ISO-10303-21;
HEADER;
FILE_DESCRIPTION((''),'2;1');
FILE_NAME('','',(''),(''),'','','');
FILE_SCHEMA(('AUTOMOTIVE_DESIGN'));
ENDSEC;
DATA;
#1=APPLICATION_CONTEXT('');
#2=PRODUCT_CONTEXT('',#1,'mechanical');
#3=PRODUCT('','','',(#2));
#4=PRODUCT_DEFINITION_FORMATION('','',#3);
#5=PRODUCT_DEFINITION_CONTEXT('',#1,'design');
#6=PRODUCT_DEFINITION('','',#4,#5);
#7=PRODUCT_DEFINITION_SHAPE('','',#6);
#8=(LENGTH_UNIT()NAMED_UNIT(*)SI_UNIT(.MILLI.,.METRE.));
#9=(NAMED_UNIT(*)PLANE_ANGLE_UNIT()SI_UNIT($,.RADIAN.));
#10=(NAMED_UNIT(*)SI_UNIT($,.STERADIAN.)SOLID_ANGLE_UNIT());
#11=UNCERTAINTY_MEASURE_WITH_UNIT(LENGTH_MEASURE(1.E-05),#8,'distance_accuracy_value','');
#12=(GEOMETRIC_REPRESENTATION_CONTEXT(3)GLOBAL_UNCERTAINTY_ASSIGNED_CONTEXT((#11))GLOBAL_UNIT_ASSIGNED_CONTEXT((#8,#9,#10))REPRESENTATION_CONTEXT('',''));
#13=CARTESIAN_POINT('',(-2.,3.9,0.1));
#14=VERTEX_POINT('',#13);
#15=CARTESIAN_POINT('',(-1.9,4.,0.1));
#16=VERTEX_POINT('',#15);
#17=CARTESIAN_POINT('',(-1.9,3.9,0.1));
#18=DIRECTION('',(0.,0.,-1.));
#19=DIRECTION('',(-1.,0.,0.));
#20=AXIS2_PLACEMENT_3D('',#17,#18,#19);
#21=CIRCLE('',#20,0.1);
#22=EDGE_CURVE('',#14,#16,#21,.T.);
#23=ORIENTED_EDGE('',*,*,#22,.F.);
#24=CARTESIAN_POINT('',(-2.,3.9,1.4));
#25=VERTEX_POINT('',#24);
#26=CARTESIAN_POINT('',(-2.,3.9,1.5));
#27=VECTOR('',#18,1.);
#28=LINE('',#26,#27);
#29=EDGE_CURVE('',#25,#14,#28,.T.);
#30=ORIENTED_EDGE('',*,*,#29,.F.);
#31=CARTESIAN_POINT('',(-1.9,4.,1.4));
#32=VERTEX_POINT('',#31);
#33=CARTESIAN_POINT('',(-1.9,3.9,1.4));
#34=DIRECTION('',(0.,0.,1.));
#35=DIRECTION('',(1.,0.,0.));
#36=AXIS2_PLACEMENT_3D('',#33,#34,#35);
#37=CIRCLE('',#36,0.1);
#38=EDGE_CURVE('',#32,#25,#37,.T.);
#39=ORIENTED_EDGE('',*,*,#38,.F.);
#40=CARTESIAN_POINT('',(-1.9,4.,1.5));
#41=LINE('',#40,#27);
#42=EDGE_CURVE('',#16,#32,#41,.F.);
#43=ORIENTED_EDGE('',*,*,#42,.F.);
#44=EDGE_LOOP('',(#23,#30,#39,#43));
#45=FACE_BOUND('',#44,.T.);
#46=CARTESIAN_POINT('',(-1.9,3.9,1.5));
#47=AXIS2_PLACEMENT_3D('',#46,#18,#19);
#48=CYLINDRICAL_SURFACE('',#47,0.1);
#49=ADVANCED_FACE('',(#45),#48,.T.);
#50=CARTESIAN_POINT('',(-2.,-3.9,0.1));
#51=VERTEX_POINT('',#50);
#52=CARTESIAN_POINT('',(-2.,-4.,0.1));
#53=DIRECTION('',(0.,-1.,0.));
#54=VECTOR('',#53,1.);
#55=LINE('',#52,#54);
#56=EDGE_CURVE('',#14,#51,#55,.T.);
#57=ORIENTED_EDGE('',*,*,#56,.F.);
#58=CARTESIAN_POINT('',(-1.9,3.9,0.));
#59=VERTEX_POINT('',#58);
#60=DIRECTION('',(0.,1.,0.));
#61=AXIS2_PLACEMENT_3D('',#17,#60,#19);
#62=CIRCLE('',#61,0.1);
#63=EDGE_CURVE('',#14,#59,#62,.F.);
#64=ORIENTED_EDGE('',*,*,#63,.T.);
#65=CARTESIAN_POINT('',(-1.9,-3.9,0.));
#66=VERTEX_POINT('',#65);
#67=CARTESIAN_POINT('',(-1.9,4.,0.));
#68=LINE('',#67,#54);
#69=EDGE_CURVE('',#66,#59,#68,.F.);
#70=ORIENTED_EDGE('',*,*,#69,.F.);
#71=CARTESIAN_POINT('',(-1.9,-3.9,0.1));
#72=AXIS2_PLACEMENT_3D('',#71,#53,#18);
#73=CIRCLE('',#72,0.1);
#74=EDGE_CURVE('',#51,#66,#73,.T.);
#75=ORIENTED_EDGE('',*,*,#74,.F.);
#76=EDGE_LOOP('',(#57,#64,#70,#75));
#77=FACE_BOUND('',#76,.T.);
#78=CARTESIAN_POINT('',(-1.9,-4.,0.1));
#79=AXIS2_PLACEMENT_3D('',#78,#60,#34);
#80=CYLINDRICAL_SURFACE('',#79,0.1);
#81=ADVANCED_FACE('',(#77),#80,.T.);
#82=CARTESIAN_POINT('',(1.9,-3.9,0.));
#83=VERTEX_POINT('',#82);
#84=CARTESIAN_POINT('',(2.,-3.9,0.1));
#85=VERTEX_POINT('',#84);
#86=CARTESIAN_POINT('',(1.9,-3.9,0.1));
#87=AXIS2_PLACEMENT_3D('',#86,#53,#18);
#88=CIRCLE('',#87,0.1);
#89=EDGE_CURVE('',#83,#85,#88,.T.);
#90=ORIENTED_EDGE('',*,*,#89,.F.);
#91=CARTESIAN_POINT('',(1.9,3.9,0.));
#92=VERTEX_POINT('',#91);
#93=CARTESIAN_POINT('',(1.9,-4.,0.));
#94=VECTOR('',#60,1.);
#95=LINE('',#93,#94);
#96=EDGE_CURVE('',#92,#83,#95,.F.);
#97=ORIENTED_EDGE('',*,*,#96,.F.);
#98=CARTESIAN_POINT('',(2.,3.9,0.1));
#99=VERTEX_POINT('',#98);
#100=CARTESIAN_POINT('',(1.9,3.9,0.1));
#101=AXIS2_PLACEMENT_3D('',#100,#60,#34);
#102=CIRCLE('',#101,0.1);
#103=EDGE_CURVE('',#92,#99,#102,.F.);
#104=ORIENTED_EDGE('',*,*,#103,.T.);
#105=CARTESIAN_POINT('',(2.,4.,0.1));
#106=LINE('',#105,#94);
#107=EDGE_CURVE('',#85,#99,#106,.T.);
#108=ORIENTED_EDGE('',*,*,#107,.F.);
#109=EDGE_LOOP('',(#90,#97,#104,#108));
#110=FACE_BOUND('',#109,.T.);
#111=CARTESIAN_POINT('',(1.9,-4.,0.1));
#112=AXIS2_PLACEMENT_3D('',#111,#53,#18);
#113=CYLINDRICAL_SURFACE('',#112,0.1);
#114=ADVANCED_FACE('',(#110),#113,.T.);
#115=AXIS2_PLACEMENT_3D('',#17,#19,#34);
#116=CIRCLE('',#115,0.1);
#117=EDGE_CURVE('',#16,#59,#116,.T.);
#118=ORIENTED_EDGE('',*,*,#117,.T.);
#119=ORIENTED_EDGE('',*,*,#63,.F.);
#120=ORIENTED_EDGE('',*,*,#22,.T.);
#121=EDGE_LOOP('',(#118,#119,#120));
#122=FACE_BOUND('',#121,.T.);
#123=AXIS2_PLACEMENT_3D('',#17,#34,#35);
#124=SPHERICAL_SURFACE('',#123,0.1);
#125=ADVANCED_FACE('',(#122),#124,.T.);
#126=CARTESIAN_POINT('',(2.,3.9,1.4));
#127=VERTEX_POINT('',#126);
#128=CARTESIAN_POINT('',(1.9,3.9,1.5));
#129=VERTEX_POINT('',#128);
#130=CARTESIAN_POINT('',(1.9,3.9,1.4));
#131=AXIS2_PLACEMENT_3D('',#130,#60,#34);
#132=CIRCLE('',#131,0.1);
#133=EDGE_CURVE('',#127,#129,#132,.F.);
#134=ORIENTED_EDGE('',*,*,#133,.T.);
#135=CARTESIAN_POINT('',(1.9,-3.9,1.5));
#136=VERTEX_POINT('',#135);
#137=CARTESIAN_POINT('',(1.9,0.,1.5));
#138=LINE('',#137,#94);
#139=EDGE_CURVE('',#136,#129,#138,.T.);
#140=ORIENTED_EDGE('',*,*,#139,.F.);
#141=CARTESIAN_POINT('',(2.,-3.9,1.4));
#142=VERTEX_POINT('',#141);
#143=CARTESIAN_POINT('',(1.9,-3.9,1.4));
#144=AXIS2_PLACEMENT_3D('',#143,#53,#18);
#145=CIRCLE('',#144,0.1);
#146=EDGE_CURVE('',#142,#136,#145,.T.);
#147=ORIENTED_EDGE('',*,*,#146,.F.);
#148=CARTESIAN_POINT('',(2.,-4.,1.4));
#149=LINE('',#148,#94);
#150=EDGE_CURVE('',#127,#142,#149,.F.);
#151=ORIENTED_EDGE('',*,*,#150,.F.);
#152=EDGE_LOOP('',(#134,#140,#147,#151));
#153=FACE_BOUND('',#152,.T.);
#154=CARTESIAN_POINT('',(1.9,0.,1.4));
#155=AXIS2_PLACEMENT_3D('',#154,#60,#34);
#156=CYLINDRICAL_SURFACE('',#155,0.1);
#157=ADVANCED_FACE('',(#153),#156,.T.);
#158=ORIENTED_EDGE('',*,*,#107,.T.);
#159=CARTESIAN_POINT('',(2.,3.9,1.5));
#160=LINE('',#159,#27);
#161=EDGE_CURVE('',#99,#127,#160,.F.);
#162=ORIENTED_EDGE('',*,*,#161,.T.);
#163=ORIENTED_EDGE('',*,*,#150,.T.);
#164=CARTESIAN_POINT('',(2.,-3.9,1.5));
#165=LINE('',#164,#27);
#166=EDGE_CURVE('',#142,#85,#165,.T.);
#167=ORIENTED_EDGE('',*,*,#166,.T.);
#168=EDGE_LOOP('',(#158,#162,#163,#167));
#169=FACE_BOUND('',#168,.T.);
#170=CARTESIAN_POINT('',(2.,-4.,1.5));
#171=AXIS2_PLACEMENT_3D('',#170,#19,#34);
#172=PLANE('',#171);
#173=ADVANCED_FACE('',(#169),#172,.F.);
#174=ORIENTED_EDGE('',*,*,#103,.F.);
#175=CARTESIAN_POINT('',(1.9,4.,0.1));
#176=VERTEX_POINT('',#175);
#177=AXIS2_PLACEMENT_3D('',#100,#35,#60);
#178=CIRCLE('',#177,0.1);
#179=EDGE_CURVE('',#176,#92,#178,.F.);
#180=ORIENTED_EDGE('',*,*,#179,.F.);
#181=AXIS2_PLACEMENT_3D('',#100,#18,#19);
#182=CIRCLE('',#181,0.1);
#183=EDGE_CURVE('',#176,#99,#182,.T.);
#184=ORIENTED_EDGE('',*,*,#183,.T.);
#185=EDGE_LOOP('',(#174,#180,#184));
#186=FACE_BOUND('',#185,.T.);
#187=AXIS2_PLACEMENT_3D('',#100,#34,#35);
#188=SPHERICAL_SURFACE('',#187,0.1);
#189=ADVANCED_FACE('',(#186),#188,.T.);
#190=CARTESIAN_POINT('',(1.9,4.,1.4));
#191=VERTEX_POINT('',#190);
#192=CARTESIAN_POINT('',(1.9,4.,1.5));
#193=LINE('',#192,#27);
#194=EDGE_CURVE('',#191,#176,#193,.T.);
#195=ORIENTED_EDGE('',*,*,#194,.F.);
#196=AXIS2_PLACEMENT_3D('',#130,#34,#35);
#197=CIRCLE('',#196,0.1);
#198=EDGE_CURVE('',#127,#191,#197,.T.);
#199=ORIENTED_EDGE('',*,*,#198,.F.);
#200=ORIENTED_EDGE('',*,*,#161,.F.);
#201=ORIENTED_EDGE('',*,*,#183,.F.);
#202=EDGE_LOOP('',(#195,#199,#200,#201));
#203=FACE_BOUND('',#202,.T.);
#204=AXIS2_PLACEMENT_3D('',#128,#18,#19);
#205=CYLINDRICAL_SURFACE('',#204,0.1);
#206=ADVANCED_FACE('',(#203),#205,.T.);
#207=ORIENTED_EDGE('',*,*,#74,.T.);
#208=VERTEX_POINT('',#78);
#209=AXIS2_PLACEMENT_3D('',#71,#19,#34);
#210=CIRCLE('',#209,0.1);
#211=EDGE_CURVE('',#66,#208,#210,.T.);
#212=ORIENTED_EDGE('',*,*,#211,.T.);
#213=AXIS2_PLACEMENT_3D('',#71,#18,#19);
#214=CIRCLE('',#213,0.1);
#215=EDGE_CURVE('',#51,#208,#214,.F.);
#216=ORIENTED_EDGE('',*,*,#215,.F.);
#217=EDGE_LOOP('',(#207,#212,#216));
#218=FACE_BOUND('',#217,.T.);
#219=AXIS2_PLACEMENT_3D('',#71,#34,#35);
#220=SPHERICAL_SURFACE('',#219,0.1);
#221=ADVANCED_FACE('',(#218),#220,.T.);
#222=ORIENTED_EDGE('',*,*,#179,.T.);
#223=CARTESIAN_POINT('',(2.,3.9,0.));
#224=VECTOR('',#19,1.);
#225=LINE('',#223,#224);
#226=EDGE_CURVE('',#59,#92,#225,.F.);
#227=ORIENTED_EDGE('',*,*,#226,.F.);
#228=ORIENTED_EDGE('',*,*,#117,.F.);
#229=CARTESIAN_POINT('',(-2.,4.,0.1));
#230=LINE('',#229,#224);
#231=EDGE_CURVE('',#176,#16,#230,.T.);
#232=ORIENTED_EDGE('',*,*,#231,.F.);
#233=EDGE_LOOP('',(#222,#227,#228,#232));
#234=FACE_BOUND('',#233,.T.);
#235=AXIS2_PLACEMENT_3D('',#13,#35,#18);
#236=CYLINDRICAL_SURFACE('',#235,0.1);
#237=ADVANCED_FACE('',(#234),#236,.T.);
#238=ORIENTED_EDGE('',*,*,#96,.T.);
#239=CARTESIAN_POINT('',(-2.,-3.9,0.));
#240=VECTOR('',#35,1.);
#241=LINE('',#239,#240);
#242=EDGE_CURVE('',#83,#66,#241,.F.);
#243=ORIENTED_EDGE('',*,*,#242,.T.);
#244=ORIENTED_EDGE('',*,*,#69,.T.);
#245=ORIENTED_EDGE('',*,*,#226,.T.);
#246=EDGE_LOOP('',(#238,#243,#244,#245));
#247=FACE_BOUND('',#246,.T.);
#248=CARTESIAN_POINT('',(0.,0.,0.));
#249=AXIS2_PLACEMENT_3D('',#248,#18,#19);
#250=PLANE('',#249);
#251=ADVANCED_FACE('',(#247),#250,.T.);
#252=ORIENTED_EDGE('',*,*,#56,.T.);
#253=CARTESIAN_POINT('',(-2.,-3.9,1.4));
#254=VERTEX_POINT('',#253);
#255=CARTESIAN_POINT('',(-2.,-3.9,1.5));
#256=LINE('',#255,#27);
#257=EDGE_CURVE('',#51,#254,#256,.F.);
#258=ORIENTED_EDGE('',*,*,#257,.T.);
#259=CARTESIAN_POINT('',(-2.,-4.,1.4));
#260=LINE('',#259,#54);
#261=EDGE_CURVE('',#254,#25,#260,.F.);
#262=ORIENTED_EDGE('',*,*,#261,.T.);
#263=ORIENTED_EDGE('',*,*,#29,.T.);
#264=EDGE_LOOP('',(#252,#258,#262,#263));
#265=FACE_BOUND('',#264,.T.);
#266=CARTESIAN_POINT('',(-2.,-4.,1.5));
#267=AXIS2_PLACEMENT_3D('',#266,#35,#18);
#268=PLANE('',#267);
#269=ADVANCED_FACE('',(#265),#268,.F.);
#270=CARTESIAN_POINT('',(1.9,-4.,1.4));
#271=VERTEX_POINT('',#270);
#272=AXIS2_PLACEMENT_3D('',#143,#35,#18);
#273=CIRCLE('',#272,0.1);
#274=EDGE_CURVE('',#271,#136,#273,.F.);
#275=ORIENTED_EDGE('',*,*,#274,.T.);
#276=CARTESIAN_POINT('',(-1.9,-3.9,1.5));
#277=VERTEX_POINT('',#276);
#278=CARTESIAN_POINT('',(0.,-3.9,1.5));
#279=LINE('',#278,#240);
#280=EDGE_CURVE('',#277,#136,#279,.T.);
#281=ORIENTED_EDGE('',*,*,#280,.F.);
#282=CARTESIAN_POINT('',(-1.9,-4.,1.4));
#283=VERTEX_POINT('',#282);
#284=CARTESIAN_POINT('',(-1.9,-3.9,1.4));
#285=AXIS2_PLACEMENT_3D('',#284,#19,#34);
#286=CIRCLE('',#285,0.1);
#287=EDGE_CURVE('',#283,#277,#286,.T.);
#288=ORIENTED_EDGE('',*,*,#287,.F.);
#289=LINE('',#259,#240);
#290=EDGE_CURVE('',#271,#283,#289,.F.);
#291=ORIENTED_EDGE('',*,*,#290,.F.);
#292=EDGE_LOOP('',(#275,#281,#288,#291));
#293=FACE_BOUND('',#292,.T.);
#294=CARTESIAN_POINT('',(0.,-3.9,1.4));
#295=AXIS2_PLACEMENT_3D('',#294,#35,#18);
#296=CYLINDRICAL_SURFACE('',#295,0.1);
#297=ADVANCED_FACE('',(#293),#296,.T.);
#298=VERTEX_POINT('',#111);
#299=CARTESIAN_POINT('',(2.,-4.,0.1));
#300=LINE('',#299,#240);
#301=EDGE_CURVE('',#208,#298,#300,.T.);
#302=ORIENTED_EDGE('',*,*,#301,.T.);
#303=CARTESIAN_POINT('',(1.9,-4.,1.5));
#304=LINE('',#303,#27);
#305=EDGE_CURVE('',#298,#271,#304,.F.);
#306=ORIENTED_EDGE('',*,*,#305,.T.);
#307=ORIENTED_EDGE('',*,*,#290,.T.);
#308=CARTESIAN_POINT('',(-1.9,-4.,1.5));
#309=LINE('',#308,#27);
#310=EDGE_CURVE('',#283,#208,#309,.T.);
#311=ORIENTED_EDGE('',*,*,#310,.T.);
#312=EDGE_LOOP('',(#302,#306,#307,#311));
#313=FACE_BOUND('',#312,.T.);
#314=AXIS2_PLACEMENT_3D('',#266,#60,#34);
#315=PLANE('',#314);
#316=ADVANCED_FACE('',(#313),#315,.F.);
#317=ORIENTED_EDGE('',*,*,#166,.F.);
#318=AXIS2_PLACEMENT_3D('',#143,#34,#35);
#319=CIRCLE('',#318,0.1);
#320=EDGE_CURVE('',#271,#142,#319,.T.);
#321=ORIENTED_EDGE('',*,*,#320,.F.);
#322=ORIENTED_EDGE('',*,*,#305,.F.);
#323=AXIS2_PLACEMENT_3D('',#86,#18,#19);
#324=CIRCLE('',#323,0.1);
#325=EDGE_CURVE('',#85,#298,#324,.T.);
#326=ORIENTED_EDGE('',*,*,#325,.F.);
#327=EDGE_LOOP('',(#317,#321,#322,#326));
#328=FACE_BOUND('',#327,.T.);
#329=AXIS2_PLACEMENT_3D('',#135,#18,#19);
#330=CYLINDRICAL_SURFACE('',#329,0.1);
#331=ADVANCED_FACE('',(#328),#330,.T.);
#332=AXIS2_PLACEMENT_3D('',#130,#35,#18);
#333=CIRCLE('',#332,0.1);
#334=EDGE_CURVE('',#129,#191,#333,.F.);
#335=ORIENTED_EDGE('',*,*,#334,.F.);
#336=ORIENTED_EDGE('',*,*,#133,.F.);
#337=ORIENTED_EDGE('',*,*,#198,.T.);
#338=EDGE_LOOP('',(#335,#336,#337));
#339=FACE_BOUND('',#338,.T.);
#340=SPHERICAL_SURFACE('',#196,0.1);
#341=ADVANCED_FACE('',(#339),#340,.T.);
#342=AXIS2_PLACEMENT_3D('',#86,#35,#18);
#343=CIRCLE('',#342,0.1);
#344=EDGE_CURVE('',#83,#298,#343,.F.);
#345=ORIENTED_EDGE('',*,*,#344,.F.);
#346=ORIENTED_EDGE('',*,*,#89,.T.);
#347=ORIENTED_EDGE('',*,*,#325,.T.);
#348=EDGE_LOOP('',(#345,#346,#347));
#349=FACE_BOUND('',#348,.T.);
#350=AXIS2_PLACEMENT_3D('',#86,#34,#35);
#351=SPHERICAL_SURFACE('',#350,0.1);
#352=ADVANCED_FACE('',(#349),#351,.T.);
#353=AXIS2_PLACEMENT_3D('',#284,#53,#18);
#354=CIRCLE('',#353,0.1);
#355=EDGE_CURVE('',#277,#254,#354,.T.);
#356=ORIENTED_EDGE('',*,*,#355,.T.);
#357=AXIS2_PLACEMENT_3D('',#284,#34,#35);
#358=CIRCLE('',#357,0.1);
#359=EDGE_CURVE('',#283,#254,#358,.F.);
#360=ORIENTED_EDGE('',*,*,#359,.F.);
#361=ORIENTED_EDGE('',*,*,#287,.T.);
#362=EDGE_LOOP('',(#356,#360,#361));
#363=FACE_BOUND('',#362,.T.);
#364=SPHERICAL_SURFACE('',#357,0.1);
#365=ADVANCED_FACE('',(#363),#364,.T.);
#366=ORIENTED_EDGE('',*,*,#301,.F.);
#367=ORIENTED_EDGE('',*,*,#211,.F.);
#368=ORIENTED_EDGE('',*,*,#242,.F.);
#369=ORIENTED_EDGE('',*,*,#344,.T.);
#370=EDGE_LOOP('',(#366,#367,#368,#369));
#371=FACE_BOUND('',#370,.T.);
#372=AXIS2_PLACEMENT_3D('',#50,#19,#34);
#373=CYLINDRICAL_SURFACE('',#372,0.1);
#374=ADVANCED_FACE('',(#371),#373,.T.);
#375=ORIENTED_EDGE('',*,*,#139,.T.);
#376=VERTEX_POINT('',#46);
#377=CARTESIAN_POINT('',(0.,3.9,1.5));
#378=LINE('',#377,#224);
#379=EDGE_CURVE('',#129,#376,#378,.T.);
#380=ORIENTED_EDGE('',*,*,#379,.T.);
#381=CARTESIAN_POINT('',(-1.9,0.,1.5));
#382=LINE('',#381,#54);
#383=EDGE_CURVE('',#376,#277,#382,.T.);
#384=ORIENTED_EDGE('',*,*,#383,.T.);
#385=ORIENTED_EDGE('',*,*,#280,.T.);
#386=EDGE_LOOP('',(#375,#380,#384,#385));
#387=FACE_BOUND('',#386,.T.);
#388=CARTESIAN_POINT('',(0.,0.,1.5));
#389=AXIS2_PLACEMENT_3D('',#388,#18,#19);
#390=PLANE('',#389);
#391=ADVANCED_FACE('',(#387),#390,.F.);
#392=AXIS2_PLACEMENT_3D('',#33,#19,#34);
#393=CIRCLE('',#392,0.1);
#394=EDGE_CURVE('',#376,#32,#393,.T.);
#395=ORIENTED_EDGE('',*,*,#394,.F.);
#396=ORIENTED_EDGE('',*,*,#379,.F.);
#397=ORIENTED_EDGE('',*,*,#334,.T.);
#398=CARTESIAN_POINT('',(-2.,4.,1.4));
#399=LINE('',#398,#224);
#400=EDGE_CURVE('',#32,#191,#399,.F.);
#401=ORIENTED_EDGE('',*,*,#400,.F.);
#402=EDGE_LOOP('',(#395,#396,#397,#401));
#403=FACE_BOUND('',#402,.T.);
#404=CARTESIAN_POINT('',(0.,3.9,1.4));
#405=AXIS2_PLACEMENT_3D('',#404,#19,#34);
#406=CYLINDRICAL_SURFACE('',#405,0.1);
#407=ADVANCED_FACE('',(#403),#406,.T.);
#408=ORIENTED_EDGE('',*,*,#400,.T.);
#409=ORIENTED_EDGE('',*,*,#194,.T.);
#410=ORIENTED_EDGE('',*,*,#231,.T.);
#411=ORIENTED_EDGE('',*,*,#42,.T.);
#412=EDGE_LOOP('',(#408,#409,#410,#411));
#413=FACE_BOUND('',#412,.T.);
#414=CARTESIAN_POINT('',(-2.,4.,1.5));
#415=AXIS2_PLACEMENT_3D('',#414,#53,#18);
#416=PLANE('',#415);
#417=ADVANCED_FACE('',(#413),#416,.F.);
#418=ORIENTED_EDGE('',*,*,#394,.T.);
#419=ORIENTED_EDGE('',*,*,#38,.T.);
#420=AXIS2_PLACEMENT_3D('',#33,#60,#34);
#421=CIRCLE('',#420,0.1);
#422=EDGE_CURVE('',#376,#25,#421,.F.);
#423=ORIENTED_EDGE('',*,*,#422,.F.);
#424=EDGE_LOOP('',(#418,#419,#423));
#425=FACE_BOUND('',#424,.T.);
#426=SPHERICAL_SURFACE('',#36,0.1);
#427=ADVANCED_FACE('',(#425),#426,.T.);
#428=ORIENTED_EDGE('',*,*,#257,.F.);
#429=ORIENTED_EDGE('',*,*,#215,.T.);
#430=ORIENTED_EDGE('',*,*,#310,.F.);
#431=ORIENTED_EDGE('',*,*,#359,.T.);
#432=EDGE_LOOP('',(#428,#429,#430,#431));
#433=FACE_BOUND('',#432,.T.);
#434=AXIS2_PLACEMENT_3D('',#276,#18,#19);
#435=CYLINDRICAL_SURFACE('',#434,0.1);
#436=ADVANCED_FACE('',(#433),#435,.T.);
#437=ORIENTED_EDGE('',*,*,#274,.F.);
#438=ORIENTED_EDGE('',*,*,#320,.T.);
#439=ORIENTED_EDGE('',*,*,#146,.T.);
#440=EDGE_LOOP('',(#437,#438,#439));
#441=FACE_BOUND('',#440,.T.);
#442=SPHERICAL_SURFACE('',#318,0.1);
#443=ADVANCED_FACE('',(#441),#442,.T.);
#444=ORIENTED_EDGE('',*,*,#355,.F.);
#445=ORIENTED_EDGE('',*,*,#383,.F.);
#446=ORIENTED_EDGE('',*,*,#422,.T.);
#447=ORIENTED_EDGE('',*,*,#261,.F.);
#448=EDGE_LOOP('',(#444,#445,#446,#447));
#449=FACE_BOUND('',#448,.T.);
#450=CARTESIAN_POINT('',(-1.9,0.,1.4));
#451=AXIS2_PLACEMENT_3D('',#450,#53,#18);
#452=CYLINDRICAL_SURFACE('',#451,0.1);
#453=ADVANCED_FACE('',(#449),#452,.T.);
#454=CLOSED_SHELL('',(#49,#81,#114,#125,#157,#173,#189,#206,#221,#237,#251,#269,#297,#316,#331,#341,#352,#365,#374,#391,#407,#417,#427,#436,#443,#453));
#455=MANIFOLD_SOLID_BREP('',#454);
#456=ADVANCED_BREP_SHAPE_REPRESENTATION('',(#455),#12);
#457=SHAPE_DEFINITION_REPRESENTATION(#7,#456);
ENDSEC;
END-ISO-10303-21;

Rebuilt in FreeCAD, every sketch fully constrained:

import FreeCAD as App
import Part
import Sketcher

V = App.Vector


def add_polygon(sketch, points):
    """Adds a closed chain of lines whose ends are joined by coincident constraints."""
    first, n = sketch.GeometryCount, len(points)
    for a, b in zip(points, points[1:] + points[:1]):
        sketch.addGeometry(Part.LineSegment(App.Vector(*a, 0), App.Vector(*b, 0)), False)
    for i in range(n):
        sketch.addConstraint(Sketcher.Constraint("Coincident", first + i, 2, first + (i + 1) % n, 1))

doc = App.newDocument("Part")
body = doc.addObject("PartDesign::Body", "Body")

# Sketch on XY plane
sketch1 = body.newObject("Sketcher::SketchObject", "Sketch")
sketch1.AttachmentSupport = (doc.getObject("XY_Plane"), [""])
sketch1.MapMode = "FlatFace"
add_polygon(sketch1, [(-2, 4), (-2, -4), (2, -4), (2, 4)])  # lines 0-3
sketch1.addConstraint([
    Sketcher.Constraint("Vertical", 0),
    Sketcher.Constraint("Horizontal", 1),
    Sketcher.Constraint("Vertical", 2),
    Sketcher.Constraint("Horizontal", 3),
    Sketcher.Constraint("Symmetric", 0, 2, 2, 2, -1, 1),
    Sketcher.Constraint("DistanceX", 1, 1, 1, 2, 4.0),
    Sketcher.Constraint("DistanceY", 0, 2, 0, 1, 8.0),
])
pad1 = body.newObject("PartDesign::Pad", "Pad")
pad1.Profile = sketch1
pad1.Length = 1.5
doc.recompute()

fillet = body.newObject("PartDesign::Fillet", "Fillet")
fillet.Base = (pad1, ["Edge1"])
fillet.UseAllEdges = True
fillet.Radius = 0.1

doc.recompute()
